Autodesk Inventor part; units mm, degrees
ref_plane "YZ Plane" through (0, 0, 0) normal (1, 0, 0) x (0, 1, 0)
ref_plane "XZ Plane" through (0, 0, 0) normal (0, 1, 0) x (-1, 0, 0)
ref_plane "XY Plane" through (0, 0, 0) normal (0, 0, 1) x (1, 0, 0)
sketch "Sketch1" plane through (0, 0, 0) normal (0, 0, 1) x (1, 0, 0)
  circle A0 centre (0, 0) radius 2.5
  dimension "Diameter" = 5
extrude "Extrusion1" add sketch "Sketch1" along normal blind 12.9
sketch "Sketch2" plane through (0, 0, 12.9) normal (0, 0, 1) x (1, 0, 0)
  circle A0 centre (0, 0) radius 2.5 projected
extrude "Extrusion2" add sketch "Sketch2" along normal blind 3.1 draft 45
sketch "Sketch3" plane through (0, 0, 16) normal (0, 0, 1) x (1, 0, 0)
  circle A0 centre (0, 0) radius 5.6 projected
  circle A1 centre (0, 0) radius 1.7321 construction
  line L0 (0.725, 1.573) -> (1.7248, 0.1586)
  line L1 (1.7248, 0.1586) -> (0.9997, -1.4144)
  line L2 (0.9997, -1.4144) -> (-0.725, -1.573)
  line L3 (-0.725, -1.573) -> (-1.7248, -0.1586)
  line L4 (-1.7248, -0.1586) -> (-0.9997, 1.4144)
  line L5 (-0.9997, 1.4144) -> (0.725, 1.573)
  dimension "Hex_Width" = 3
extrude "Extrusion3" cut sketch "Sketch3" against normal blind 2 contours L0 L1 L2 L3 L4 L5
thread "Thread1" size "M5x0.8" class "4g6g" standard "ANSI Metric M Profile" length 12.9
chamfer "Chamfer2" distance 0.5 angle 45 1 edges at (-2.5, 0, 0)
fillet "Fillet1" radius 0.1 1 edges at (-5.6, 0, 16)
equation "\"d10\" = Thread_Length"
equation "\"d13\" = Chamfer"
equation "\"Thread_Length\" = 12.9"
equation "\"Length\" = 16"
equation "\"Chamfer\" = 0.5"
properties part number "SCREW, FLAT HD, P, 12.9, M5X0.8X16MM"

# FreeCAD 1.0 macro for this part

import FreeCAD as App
import Part
import Sketcher
from FreeCAD import Vector


def edges_at(feature, points):
    """Names of the edges that pass closest to the given points."""
    edges = feature.Shape.Edges
    near = lambda p: min(range(len(edges)), key=lambda i: edges[i].distToShape(Part.Vertex(*p))[0])
    return sorted({f"Edge{near(p) + 1}" for p in points})

doc = App.newDocument("Part")
body = doc.addObject("PartDesign::Body", "Body")

# Sketch on XY plane
sketch1 = doc.addObject("Sketcher::SketchObject", "Sketch")
body.addObject(sketch1)
sketch1.AttachmentSupport = (doc.XY_Plane, [""])
sketch1.MapMode = "FlatFace"
sketch1.addGeometry(Part.Circle(Vector(0, 0, 0), Vector(0, 0, 1), 2.5), False)
sketch1.addConstraint([
    Sketcher.Constraint("Coincident", 0, 3, -1, 1),
    Sketcher.Constraint("Diameter", 0, 5.0),
])
pad1 = doc.addObject("PartDesign::Pad", "Pad")
body.addObject(pad1)
pad1.Profile = sketch1
pad1.Length = 12.9

# Sketch on XY plane
sketch2 = doc.addObject("Sketcher::SketchObject", "Sketch001")
body.addObject(sketch2)
sketch2.AttachmentSupport = (doc.XY_Plane, [""])
sketch2.MapMode = "FlatFace"
sketch2.AttachmentOffset = App.Placement(Vector(0, 0, 12.9), App.Rotation())
sketch2.addGeometry(Part.Circle(Vector(0, 0, 0), Vector(0, 0, 1), 2.5), False)
sketch2.addConstraint([
    Sketcher.Constraint("Coincident", 0, 3, -1, 1),
    Sketcher.Constraint("Diameter", 0, 5.0),
])
pad2 = doc.addObject("PartDesign::Pad", "Pad001")
body.addObject(pad2)
pad2.Profile = sketch2
pad2.Length = 3.1
pad2.TaperAngle = 45

# Sketch on XY plane
sketch3 = doc.addObject("Sketcher::SketchObject", "Sketch002")
body.addObject(sketch3)
sketch3.AttachmentSupport = (doc.XY_Plane, [""])
sketch3.MapMode = "FlatFace"
sketch3.AttachmentOffset = App.Placement(Vector(0, 0, 16), App.Rotation())
sketch3.addGeometry([
    Part.LineSegment(Vector(1.7, 0.2, 0), Vector(0.7, 1.6, 0)),  # 0
    Part.LineSegment(Vector(0.7, 1.6, 0), Vector(-1, 1.4, 0)),  # 1
    Part.LineSegment(Vector(-1, 1.4, 0), Vector(-1.7, -0.2, 0)),  # 2
    Part.LineSegment(Vector(-1.7, -0.2, 0), Vector(-0.7, -1.6, 0)),  # 3
    Part.LineSegment(Vector(-0.7, -1.6, 0), Vector(1, -1.4, 0)),  # 4
    Part.LineSegment(Vector(1, -1.4, 0), Vector(1.7, 0.2, 0)),  # 5
], False)
sketch3.addConstraint([
    Sketcher.Constraint("Coincident", 0, 2, 1, 1),
    Sketcher.Constraint("Coincident", 1, 2, 2, 1),
    Sketcher.Constraint("Coincident", 2, 2, 3, 1),
    Sketcher.Constraint("Coincident", 3, 2, 4, 1),
    Sketcher.Constraint("Coincident", 4, 2, 5, 1),
    Sketcher.Constraint("Coincident", 5, 2, 0, 1),
    Sketcher.Constraint("Symmetric", 0, 2, 3, 2, -1, 1),
    Sketcher.Constraint("Symmetric", 1, 2, 4, 2, -1, 1),
    Sketcher.Constraint("Symmetric", 2, 2, 5, 2, -1, 1),
    Sketcher.Constraint("Equal", 0, 1),
    Sketcher.Constraint("Equal", 1, 2),
    Sketcher.Constraint("DistanceX", 3, 2, 0, 2, 1.45),
    Sketcher.Constraint("Distance", 0, 1.732),
    Sketcher.Constraint("DistanceY", -1, 1, 0, 2, 1.573),
    Sketcher.Constraint("DistanceX", 2, 2, 1, 2, 0.725),
])
pocket1 = doc.addObject("PartDesign::Pocket", "Pocket")
body.addObject(pocket1)
pocket1.Profile = sketch3
pocket1.Length = 2
doc.recompute()

chamfer = doc.addObject("PartDesign::Chamfer", "Chamfer")
body.addObject(chamfer)
chamfer.Base = (pocket1, edges_at(pocket1, [(-2.5, 0, 0)]))
chamfer.Size = 0.5
doc.recompute()

fillet = doc.addObject("PartDesign::Fillet", "Fillet")
body.addObject(fillet)
fillet.Base = (chamfer, edges_at(chamfer, [(-5.6, 0, 16)]))
fillet.Radius = 0.1

doc.recompute()
